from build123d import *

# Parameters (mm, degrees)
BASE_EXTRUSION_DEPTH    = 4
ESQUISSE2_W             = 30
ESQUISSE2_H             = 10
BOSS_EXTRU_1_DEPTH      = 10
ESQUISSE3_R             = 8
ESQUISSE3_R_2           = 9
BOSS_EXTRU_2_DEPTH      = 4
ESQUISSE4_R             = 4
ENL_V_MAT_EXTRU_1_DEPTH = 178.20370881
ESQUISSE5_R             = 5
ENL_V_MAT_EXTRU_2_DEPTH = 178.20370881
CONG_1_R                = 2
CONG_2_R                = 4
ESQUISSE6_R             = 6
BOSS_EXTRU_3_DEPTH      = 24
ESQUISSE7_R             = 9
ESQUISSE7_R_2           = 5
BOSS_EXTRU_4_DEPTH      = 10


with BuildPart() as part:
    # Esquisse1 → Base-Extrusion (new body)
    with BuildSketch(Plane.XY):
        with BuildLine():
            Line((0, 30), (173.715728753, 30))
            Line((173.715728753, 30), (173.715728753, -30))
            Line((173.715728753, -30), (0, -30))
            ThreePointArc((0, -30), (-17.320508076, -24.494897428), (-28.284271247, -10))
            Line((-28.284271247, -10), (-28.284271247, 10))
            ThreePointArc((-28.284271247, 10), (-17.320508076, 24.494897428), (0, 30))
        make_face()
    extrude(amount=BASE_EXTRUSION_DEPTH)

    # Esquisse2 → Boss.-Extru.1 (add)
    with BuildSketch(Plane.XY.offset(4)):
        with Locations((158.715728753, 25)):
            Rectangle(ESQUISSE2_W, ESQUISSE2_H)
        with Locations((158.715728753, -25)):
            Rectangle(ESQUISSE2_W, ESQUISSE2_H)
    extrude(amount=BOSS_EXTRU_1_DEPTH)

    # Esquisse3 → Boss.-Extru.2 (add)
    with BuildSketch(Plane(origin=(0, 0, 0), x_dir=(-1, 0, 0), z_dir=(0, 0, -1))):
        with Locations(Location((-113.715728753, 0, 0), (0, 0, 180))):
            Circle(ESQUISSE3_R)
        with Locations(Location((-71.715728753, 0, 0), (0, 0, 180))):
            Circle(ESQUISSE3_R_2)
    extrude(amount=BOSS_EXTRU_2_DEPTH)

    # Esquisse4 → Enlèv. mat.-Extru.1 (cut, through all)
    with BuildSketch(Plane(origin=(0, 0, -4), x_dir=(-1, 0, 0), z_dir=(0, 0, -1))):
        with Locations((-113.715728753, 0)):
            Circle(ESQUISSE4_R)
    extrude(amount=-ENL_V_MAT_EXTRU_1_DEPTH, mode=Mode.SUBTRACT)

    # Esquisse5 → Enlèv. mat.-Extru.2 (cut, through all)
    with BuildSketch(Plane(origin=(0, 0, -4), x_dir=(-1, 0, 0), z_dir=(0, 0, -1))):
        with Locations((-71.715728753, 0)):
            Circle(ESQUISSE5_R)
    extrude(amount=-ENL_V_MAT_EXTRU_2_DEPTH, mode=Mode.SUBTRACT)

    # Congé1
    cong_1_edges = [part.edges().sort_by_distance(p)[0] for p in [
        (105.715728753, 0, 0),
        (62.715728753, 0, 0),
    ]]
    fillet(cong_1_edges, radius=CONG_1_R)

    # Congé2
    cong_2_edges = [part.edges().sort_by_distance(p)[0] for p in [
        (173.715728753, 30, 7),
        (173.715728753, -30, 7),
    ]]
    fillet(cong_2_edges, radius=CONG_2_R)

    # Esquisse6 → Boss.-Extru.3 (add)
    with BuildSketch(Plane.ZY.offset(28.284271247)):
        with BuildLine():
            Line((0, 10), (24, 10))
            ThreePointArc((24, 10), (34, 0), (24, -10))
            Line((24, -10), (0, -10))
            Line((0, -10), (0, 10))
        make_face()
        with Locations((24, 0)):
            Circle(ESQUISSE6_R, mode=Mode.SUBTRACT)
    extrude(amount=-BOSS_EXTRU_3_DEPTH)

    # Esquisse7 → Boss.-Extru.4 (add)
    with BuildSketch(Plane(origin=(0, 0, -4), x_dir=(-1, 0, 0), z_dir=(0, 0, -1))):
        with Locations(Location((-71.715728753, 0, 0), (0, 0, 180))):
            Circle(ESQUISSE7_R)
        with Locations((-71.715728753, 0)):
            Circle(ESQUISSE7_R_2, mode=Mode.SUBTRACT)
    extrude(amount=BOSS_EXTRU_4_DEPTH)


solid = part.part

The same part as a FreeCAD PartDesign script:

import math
import FreeCAD as App
import Part
import Sketcher


def edges_at(feature, points):
    """Names of the edges that pass closest to the given points."""
    edges = feature.Shape.Edges
    near = lambda p: min(range(len(edges)), key=lambda i: edges[i].distToShape(Part.Vertex(*p))[0])
    return sorted({f"Edge{near(p) + 1}" for p in points})


def add_polygon(sketch, points):
    """Adds a closed chain of lines whose ends are joined by coincident constraints."""
    first, n = sketch.GeometryCount, len(points)
    for a, b in zip(points, points[1:] + points[:1]):
        sketch.addGeometry(Part.LineSegment(App.Vector(*a, 0), App.Vector(*b, 0)), False)
    for i in range(n):
        sketch.addConstraint(Sketcher.Constraint("Coincident", first + i, 2, first + (i + 1) % n, 1))

doc = App.newDocument("Part")
body = doc.addObject("PartDesign::Body", "Body")

# Sketch on XY plane
sketch1 = body.newObject("Sketcher::SketchObject", "Sketch")
sketch1.AttachmentSupport = (doc.getObject("XY_Plane"), [""])
sketch1.MapMode = "FlatFace"
sketch1.addGeometry([
    Part.LineSegment(App.Vector(174, 30, 0), App.Vector(0, 30, 0)),  # 0
    Part.ArcOfCircle(Part.Circle(App.Vector(0, 0, 0), App.Vector(0, 0, 1), 30), math.radians(90), math.radians(161)),  # 1
    Part.LineSegment(App.Vector(-28, 10, 0), App.Vector(-28, -10, 0)),  # 2
    Part.ArcOfCircle(Part.Circle(App.Vector(0, 0, 0), App.Vector(0, 0, 1), 30), math.radians(-161), math.radians(-90)),  # 3
    Part.LineSegment(App.Vector(0, -30, 0), App.Vector(174, -30, 0)),  # 4
    Part.LineSegment(App.Vector(174, -30, 0), App.Vector(174, 30, 0)),  # 5
], False)
sketch1.addConstraint([
    Sketcher.Constraint("Tangent", 0, 2, 1, 1),
    Sketcher.Constraint("Coincident", 1, 2, 2, 1),
    Sketcher.Constraint("Coincident", 2, 2, 3, 1),
    Sketcher.Constraint("Tangent", 3, 2, 4, 1),
    Sketcher.Constraint("Coincident", 4, 2, 5, 1),
    Sketcher.Constraint("Coincident", 5, 2, 0, 1),
    Sketcher.Constraint("Horizontal", 0),
    Sketcher.Constraint("Vertical", 2),
    Sketcher.Constraint("Horizontal", 4),
    Sketcher.Constraint("Vertical", 5),
    Sketcher.Constraint("Coincident", 1, 3, -1, 1),
    Sketcher.Constraint("Coincident", 3, 3, -1, 1),
    Sketcher.Constraint("Equal", 1, 3),
    Sketcher.Constraint("Radius", 1, 30.0),
    Sketcher.Constraint("DistanceY", 2, 2, 2, 1, 20.0),
    Sketcher.Constraint("DistanceX", 2, 2, 4, 2, 202.0),
])
pad1 = body.newObject("PartDesign::Pad", "Pad")
pad1.Profile = sketch1
pad1.Length = 4

# Sketch on XY plane
sketch2 = body.newObject("Sketcher::SketchObject", "Sketch001")
sketch2.AttachmentSupport = (doc.getObject("XY_Plane"), [""])
sketch2.MapMode = "FlatFace"
sketch2.AttachmentOffset = App.Placement(App.Vector(0, 0, 4), App.Rotation())
add_polygon(sketch2, [(144, 30), (144, 20), (174, 20), (174, 30)])  # lines 0-3
add_polygon(sketch2, [(144, -20), (144, -30), (174, -30), (174, -20)])  # lines 4-7
sketch2.addConstraint([
    Sketcher.Constraint("Vertical", 0),
    Sketcher.Constraint("Horizontal", 1),
    Sketcher.Constraint("Vertical", 2),
    Sketcher.Constraint("Horizontal", 3),
    Sketcher.Constraint("Vertical", 4),
    Sketcher.Constraint("Horizontal", 5),
    Sketcher.Constraint("Vertical", 6),
    Sketcher.Constraint("Horizontal", 7),
    Sketcher.Constraint("Symmetric", 3, 2, 4, 2, -1),
    Sketcher.Constraint("Symmetric", 1, 2, 6, 2, -1),
    Sketcher.Constraint("DistanceX", 1, 1, 1, 2, 30.0),
    Sketcher.Constraint("DistanceY", 0, 2, 0, 1, 10.0),
    Sketcher.Constraint("DistanceY", -1, 1, 0, 2, 20.0),
    Sketcher.Constraint("DistanceX", -1, 1, 0, 2, 143.715729),
])
pad2 = body.newObject("PartDesign::Pad", "Pad001")
pad2.Profile = sketch2
pad2.Length = 10

# Sketch on XY plane
sketch3 = body.newObject("Sketcher::SketchObject", "Sketch002")
sketch3.AttachmentSupport = (doc.getObject("XY_Plane"), [""])
sketch3.MapMode = "FlatFace"
sketch3.addGeometry([
    Part.Circle(App.Vector(114, 0, 0), App.Vector(0, 0, 1), 8),
    Part.Circle(App.Vector(72, 0, 0), App.Vector(0, 0, 1), 9),
], False)
sketch3.addConstraint([
    Sketcher.Constraint("PointOnObject", 0, 3, -1),
    Sketcher.Constraint("PointOnObject", 1, 3, -1),
    Sketcher.Constraint("Diameter", 0, 16.0),
    Sketcher.Constraint("Diameter", 1, 18.0),
    Sketcher.Constraint("DistanceX", 1, 3, 0, 3, 42.0),
    Sketcher.Constraint("DistanceX", -1, 1, 0, 3, 113.715729),
])
pad3 = body.newObject("PartDesign::Pad", "Pad002")
pad3.Profile = sketch3
pad3.Length = 4
pad3.Reversed = True

# Sketch on XY plane
sketch4 = body.newObject("Sketcher::SketchObject", "Sketch003")
sketch4.AttachmentSupport = (doc.getObject("XY_Plane"), [""])
sketch4.MapMode = "FlatFace"
sketch4.AttachmentOffset = App.Placement(App.Vector(0, 0, -4), App.Rotation())
sketch4.addGeometry(Part.Circle(App.Vector(113.7, 0, 0), App.Vector(0, 0, 1), 4), False)
sketch4.addConstraint([
    Sketcher.Constraint("PointOnObject", 0, 3, -1),
    Sketcher.Constraint("Diameter", 0, 8.0),
    Sketcher.Constraint("DistanceX", -1, 1, 0, 3, 113.715729),
])
pocket1 = body.newObject("PartDesign::Pocket", "Pocket")
pocket1.Profile = sketch4
pocket1.Type = "ThroughAll"
pocket1.Reversed = True

# Sketch on XY plane
sketch5 = body.newObject("Sketcher::SketchObject", "Sketch004")
sketch5.AttachmentSupport = (doc.getObject("XY_Plane"), [""])
sketch5.MapMode = "FlatFace"
sketch5.AttachmentOffset = App.Placement(App.Vector(0, 0, -4), App.Rotation())
sketch5.addGeometry(Part.Circle(App.Vector(72, 0, 0), App.Vector(0, 0, 1), 5), False)
sketch5.addConstraint([
    Sketcher.Constraint("PointOnObject", 0, 3, -1),
    Sketcher.Constraint("Diameter", 0, 10.0),
    Sketcher.Constraint("DistanceX", -1, 1, 0, 3, 71.715729),
])
pocket2 = body.newObject("PartDesign::Pocket", "Pocket001")
pocket2.Profile = sketch5
pocket2.Type = "ThroughAll"
pocket2.Reversed = True
doc.recompute()

fillet = body.newObject("PartDesign::Fillet", "Fillet")
fillet.Base = (pocket2, edges_at(pocket2, [(105.716, 0, 0), (62.716, 0, 0)]))
fillet.Radius = 2
doc.recompute()

fillet2 = body.newObject("PartDesign::Fillet", "Fillet001")
fillet2.Base = (fillet, edges_at(fillet, [(173.716, 30, 7), (173.716, -30, 7)]))
fillet2.Radius = 4

# Sketch on YZ plane
sketch6 = body.newObject("Sketcher::SketchObject", "Sketch005")
sketch6.AttachmentSupport = (doc.getObject("YZ_Plane"), [""])
sketch6.MapMode = "FlatFace"
sketch6.AttachmentOffset = App.Placement(App.Vector(0, 0, -28.284271), App.Rotation())
sketch6.addGeometry([
    Part.LineSegment(App.Vector(10, 24, 0), App.Vector(10, 0, 0)),  # 0
    Part.LineSegment(App.Vector(10, 0, 0), App.Vector(-10, 0, 0)),  # 1
    Part.LineSegment(App.Vector(-10, 0, 0), App.Vector(-10, 24, 0)),  # 2
    Part.ArcOfCircle(Part.Circle(App.Vector(0, 24, 0), App.Vector(0, 0, 1), 10), math.radians(0), math.radians(180)),  # 3
    Part.Circle(App.Vector(0, 24, 0), App.Vector(0, 0, 1), 6),  # 4
], False)
sketch6.addConstraint([
    Sketcher.Constraint("Coincident", 0, 2, 1, 1),
    Sketcher.Constraint("Coincident", 1, 2, 2, 1),
    Sketcher.Constraint("Tangent", 2, 2, 3, 2),
    Sketcher.Constraint("Tangent", 3, 1, 0, 1),
    Sketcher.Constraint("Vertical", 0),
    Sketcher.Constraint("Horizontal", 1),
    Sketcher.Constraint("Vertical", 2),
    Sketcher.Constraint("Coincident", 4, 3, 3, 3),
    Sketcher.Constraint("Symmetric", 0, 2, 1, 2, -1, 1),
    Sketcher.Constraint("Diameter", 4, 12.0),
    Sketcher.Constraint("Radius", 3, 10.0),
    Sketcher.Constraint("DistanceY", 0, 2, 0, 1, 24.0),
])
pad4 = body.newObject("PartDesign::Pad", "Pad003")
pad4.Profile = sketch6
pad4.Length = 24

# Sketch on XY plane
sketch7 = body.newObject("Sketcher::SketchObject", "Sketch006")
sketch7.AttachmentSupport = (doc.getObject("XY_Plane"), [""])
sketch7.MapMode = "FlatFace"
sketch7.AttachmentOffset = App.Placement(App.Vector(0, 0, -4), App.Rotation())
sketch7.addGeometry([
    Part.Circle(App.Vector(72, 0, 0), App.Vector(0, 0, 1), 9),
    Part.Circle(App.Vector(72, 0, 0), App.Vector(0, 0, 1), 5),
], False)
sketch7.addConstraint([
    Sketcher.Constraint("Coincident", 1, 3, 0, 3),
    Sketcher.Constraint("PointOnObject", 0, 3, -1),
    Sketcher.Constraint("Diameter", 0, 18.0),
    Sketcher.Constraint("Diameter", 1, 10.0),
    Sketcher.Constraint("DistanceX", -1, 1, 0, 3, 71.715729),
])
pad5 = body.newObject("PartDesign::Pad", "Pad004")
pad5.Profile = sketch7
pad5.Length = 10
pad5.Reversed = True

doc.recompute()
